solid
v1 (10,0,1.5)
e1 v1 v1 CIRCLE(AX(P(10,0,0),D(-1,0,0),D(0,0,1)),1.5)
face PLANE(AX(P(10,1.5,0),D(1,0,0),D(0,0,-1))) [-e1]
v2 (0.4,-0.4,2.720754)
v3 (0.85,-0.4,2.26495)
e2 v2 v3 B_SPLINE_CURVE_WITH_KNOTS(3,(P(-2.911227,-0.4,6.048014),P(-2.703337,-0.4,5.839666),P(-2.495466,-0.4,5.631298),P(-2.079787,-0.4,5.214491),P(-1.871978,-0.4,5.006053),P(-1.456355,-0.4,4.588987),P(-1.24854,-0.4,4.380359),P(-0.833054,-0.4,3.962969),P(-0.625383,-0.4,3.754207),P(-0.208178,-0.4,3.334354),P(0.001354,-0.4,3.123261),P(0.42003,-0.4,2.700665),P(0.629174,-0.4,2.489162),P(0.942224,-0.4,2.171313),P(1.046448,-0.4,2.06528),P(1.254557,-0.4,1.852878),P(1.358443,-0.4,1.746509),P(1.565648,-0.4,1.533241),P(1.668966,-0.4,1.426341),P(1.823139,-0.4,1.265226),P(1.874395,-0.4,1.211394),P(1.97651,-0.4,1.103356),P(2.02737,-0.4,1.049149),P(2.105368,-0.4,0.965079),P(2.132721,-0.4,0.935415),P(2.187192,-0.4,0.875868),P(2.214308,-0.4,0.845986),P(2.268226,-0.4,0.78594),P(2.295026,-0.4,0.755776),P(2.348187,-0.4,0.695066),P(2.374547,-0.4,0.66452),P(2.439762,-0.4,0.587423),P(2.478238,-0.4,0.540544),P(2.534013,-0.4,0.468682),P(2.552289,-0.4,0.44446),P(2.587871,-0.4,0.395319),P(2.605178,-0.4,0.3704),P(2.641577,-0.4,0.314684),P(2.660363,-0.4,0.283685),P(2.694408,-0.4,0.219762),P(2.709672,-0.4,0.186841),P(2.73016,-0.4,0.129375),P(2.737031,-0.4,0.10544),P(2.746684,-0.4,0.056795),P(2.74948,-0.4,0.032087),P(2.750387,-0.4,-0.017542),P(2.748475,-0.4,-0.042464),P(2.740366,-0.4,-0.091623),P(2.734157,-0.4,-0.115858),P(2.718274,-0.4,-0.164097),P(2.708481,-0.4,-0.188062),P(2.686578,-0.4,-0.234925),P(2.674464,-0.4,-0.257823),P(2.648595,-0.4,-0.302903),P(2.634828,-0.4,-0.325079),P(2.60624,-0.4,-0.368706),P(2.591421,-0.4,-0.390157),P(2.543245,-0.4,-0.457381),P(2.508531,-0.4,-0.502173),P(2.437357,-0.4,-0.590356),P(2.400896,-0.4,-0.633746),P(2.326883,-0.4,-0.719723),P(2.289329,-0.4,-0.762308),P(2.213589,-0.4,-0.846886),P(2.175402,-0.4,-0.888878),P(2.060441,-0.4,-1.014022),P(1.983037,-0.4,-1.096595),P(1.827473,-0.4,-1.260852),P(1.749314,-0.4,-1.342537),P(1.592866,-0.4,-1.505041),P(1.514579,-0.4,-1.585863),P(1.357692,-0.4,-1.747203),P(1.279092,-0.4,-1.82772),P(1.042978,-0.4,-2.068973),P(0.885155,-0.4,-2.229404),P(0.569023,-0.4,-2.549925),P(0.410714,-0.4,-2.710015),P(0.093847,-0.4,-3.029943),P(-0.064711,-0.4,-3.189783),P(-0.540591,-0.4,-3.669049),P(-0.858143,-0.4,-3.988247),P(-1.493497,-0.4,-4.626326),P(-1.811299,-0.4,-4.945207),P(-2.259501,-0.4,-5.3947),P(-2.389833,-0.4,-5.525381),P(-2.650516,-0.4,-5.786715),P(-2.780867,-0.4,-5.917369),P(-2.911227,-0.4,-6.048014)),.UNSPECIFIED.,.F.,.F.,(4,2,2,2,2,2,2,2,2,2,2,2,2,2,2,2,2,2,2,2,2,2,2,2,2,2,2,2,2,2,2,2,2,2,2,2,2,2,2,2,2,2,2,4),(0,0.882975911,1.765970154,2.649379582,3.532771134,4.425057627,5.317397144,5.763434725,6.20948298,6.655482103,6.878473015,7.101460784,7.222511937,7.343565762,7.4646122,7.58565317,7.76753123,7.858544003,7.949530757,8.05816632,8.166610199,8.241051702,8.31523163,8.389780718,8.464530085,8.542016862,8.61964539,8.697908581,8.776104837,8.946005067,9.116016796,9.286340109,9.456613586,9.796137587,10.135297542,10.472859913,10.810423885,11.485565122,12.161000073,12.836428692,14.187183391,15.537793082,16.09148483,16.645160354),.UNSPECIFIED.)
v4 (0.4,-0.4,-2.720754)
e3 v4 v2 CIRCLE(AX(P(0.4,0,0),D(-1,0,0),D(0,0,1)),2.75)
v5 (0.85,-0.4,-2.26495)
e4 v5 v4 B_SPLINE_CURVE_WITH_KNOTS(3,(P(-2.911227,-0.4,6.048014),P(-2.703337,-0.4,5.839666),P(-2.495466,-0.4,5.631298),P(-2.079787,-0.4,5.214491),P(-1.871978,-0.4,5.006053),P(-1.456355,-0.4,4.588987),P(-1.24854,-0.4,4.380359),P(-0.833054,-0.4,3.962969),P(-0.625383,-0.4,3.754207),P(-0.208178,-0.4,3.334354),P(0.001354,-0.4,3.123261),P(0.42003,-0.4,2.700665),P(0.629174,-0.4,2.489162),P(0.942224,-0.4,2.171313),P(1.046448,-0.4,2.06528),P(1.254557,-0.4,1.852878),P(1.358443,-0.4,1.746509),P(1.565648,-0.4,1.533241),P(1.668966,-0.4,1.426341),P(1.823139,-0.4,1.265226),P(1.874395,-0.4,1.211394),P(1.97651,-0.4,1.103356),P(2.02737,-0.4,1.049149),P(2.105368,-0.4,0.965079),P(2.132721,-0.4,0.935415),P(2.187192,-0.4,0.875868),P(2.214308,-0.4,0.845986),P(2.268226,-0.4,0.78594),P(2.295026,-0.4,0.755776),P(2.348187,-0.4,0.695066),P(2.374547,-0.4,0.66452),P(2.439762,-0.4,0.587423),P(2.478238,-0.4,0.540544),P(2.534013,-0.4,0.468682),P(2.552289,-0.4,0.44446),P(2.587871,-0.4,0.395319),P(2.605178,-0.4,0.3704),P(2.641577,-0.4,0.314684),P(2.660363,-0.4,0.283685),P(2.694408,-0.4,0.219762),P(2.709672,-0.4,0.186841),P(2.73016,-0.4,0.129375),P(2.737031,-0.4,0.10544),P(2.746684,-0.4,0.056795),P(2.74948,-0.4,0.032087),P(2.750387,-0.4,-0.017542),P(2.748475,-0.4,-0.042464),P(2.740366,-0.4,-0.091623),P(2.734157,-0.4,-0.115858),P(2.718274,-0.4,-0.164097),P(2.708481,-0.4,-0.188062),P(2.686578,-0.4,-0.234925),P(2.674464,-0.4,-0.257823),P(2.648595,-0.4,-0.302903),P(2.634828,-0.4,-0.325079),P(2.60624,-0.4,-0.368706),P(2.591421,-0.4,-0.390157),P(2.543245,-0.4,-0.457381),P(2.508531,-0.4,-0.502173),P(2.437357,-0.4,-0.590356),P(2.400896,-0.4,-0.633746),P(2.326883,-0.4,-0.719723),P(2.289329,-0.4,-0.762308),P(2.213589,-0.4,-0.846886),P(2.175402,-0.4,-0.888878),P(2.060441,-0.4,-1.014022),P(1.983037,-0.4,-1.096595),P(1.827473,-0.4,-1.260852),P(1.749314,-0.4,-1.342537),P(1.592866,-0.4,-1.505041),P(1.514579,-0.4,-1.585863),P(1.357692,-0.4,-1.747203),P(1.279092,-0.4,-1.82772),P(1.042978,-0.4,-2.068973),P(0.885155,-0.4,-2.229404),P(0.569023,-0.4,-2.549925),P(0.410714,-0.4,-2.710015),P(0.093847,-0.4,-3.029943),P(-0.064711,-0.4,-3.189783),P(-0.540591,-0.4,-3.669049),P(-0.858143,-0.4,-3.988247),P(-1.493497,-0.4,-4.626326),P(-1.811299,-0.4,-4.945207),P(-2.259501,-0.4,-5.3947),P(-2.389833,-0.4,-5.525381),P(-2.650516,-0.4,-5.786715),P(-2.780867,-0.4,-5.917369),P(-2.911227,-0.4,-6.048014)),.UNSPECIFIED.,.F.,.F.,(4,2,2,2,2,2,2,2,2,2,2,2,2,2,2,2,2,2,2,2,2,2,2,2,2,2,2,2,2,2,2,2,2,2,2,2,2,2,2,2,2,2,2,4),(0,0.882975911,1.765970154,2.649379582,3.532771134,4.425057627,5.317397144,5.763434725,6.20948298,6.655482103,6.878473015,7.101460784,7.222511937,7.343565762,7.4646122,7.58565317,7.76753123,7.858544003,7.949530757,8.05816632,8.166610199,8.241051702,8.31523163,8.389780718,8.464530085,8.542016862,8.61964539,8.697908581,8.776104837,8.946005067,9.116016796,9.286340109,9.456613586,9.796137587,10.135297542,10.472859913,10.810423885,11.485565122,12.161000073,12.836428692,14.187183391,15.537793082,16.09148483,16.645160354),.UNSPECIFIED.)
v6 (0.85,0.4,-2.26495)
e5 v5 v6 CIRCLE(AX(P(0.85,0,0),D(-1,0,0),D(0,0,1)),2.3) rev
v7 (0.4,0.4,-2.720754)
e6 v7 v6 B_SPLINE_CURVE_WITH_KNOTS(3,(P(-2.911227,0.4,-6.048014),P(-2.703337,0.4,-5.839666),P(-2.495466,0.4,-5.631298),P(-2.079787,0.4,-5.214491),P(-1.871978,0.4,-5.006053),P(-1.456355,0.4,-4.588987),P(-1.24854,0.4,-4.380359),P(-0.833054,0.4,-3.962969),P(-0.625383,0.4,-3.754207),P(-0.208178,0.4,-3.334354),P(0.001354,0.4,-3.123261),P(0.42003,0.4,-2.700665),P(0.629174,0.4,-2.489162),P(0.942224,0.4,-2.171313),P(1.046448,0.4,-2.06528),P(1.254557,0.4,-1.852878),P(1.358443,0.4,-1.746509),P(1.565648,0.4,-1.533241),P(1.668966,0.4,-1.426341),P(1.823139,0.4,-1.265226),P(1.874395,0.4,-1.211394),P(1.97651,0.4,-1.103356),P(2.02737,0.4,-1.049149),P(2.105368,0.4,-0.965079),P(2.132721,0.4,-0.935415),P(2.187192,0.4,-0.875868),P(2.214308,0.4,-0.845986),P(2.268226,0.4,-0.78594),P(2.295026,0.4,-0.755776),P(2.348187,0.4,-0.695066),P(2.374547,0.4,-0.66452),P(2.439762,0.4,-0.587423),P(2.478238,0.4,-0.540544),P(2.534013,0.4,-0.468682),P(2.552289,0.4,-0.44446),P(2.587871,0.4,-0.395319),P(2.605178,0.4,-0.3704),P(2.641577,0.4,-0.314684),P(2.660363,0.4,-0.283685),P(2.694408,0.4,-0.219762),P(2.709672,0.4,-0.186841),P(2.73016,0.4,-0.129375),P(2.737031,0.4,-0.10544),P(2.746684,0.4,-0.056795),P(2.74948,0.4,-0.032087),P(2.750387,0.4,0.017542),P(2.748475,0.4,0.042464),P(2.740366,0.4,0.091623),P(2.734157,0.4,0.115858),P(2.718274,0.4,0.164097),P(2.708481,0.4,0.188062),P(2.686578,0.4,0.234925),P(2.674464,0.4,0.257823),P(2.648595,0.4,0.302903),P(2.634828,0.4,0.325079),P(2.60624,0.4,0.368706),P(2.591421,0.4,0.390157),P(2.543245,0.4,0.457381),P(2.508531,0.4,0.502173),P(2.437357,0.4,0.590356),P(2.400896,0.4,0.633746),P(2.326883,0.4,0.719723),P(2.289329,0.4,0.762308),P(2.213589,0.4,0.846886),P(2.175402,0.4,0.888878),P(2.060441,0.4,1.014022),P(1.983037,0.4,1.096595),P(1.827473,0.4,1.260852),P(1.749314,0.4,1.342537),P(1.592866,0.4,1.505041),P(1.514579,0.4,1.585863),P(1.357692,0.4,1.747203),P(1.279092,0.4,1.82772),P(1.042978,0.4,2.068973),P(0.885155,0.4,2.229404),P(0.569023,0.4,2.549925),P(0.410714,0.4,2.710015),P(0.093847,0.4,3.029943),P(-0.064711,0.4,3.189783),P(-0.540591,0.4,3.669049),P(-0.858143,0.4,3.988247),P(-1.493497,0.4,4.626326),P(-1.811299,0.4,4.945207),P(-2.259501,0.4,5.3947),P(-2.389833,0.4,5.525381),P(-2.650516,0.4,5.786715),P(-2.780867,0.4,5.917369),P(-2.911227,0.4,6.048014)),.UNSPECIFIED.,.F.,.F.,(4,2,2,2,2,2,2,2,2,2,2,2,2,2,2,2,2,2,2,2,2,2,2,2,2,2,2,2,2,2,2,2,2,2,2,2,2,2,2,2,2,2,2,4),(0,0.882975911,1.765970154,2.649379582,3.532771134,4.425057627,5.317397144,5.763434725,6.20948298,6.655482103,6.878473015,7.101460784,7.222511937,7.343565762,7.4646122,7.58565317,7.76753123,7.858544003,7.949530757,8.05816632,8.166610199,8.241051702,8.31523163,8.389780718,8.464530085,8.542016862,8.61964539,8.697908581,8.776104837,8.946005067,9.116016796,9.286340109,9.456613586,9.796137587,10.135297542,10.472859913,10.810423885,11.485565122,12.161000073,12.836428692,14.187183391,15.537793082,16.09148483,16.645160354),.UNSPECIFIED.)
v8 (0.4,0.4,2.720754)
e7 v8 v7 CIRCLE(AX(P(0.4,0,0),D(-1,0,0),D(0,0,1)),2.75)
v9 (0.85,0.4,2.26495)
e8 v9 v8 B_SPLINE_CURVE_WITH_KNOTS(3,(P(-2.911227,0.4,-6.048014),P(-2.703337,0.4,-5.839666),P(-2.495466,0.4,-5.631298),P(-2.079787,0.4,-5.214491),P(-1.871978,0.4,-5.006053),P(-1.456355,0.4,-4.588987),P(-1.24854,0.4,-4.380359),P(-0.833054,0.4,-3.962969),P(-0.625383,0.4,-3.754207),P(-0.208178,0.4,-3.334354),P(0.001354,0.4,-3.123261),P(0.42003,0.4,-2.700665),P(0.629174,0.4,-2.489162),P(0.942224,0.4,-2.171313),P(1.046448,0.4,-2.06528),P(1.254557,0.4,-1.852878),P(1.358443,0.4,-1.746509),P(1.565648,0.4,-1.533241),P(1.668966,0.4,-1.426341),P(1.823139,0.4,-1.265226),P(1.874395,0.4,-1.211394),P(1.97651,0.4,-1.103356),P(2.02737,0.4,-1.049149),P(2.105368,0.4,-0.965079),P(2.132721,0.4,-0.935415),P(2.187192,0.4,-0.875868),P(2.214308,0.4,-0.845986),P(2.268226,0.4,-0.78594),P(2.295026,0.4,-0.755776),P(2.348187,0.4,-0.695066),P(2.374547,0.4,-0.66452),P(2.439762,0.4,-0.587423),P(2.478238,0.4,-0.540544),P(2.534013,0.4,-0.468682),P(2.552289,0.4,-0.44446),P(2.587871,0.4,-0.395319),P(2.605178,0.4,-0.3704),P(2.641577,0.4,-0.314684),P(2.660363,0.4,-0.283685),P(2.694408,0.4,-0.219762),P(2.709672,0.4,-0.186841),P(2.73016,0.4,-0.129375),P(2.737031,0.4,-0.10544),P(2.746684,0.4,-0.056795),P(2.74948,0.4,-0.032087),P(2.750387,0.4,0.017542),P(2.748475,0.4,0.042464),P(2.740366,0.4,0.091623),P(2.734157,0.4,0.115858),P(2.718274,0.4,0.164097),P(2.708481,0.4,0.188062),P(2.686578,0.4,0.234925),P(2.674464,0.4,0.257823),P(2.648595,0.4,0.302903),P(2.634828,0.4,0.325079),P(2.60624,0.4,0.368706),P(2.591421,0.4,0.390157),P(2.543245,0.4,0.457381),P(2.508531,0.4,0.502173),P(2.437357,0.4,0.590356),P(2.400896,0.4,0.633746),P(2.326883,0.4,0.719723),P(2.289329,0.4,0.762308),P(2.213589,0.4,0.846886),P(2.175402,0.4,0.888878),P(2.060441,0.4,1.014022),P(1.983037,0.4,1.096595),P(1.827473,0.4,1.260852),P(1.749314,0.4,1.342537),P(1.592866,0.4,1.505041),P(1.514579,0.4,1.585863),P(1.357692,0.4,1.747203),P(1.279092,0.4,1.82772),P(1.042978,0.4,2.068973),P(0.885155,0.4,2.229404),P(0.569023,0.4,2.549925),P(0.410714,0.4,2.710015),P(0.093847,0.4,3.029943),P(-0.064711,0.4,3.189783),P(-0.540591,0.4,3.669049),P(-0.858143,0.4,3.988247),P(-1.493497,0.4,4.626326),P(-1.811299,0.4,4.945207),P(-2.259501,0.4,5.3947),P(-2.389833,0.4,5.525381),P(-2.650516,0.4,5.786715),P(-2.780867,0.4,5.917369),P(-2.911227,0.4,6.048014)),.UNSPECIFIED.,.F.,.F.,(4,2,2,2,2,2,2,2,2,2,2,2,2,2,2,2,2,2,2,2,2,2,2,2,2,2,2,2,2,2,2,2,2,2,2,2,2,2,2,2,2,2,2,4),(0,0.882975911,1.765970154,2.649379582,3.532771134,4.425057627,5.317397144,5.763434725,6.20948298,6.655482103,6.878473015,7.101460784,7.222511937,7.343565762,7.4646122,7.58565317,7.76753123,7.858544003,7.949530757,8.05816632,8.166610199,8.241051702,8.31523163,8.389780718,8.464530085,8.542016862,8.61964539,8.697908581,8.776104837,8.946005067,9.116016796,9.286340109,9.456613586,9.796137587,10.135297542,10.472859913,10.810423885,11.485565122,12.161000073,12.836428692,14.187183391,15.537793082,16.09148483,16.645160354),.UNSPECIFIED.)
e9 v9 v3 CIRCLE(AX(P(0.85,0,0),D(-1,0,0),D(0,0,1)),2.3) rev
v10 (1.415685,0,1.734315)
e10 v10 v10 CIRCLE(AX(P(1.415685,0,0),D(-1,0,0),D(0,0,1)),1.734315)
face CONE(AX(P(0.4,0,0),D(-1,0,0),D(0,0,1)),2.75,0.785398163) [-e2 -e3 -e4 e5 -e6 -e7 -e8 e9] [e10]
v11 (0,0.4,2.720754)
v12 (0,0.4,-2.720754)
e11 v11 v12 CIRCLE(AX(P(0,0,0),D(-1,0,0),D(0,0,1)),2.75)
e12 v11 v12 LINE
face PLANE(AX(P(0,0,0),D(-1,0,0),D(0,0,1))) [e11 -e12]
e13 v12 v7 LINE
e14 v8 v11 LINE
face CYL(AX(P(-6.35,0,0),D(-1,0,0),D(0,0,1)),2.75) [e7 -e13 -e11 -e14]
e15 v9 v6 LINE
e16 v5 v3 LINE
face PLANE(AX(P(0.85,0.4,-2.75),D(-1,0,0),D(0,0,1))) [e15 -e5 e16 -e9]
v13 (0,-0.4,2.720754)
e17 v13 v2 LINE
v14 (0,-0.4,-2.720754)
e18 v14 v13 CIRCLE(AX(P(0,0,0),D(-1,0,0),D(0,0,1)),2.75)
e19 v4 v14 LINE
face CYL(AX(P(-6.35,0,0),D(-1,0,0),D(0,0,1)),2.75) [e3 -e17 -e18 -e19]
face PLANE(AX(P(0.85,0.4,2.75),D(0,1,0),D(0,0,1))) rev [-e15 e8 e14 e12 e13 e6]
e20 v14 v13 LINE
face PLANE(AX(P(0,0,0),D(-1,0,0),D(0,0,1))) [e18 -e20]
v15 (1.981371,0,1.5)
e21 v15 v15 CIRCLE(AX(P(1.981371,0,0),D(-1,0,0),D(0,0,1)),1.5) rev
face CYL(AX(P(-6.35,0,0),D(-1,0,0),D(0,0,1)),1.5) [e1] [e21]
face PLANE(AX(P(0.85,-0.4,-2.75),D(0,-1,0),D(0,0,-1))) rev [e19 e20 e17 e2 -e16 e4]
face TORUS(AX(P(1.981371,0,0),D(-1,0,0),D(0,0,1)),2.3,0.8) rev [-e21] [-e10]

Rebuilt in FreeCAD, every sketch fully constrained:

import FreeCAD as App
import Part
import Sketcher

V = App.Vector
Q = App.Units.Quantity


def edges_at(feature, points):
    """Names of the edges that pass closest to the given points."""
    edges = feature.Shape.Edges
    near = lambda p: min(range(len(edges)), key=lambda i: edges[i].distToShape(Part.Vertex(*p))[0])
    return sorted({f"Edge{near(p) + 1}" for p in points})

doc = App.newDocument("Part")
body = doc.addObject("PartDesign::Body", "Body")

sketch1 = body.newObject("Sketcher::SketchObject", "Sketch")
sketch1.AttachmentSupport = (doc.getObject("XY_Plane"), [""])
sketch1.MapMode = "FlatFace"
sketch1.addGeometry(Part.LineSegment(V(0, 2.75, 0), V(0, 0, 0)), False)
sketch1.addGeometry(Part.LineSegment(V(0, 0, 0), V(10, 0, 0)), False)
sketch1.addGeometry(Part.LineSegment(V(10, 0, 0), V(10, 1.5, 0)), False)
sketch1.addGeometry(Part.LineSegment(V(10, 1.5, 0), V(1.65, 1.5, 0)), False)
sketch1.addGeometry(Part.LineSegment(V(1.65, 1.5, 0), V(0.4, 2.75, 0)), False)
sketch1.addGeometry(Part.LineSegment(V(0.4, 2.75, 0), V(0, 2.75, 0)), False)
sketch1.addConstraint(Sketcher.Constraint("Coincident", 0, 2, 1, 1))
sketch1.addConstraint(Sketcher.Constraint("Coincident", 1, 2, 2, 1))
sketch1.addConstraint(Sketcher.Constraint("Coincident", 2, 2, 3, 1))
sketch1.addConstraint(Sketcher.Constraint("Coincident", 3, 2, 4, 1))
sketch1.addConstraint(Sketcher.Constraint("Coincident", 4, 2, 5, 1))
sketch1.addConstraint(Sketcher.Constraint("Coincident", 5, 2, 0, 1))
sketch1.addConstraint(Sketcher.Constraint("Vertical", 0))
sketch1.addConstraint(Sketcher.Constraint("Horizontal", 1))
sketch1.addConstraint(Sketcher.Constraint("Vertical", 2))
sketch1.addConstraint(Sketcher.Constraint("Horizontal", 3))
sketch1.addConstraint(Sketcher.Constraint("Horizontal", 5))
sketch1.addConstraint(Sketcher.Constraint("Coincident", 0, 2, -1, 1))
sketch1.addConstraint(Sketcher.Constraint("DistanceX", 1, 1, 1, 2, 10.0))
sketch1.addConstraint(Sketcher.Constraint("Angle", 4, Q("135 deg")))
sketch1.addConstraint(Sketcher.Constraint("DistanceX", 5, 2, 5, 1, 0.4))
sketch1.addConstraint(Sketcher.Constraint("DistanceY", 2, 1, 2, 2, 1.5))
sketch1.addConstraint(Sketcher.Constraint("DistanceX", 3, 2, 3, 1, 8.35))
revolution = body.newObject("PartDesign::Revolution", "Revolution")
revolution.Profile = sketch1
revolution.ReferenceAxis = (sketch1, ["H_Axis"])
revolution.Angle = 360
doc.recompute()

fillet = body.newObject("PartDesign::Fillet", "Fillet")
fillet.Base = (revolution, edges_at(revolution, [(1.65, 0, -1.5)]))
fillet.Radius = 0.8

sketch2 = body.newObject("Sketcher::SketchObject", "Sketch001")
sketch2.AttachmentSupport = (doc.getObject("YZ_Plane"), [""])
sketch2.MapMode = "FlatFace"
sketch2.addGeometry(Part.LineSegment(V(0.4, -2.8, 0), V(-0.4, -2.8, 0)), False)
sketch2.addGeometry(Part.LineSegment(V(-0.4, -2.8, 0), V(-0.4, 2.8, 0)), False)
sketch2.addGeometry(Part.LineSegment(V(-0.4, 2.8, 0), V(0.4, 2.8, 0)), False)
sketch2.addGeometry(Part.LineSegment(V(0.4, 2.8, 0), V(0.4, -2.8, 0)), False)
sketch2.addConstraint(Sketcher.Constraint("Coincident", 0, 2, 1, 1))
sketch2.addConstraint(Sketcher.Constraint("Coincident", 1, 2, 2, 1))
sketch2.addConstraint(Sketcher.Constraint("Coincident", 2, 2, 3, 1))
sketch2.addConstraint(Sketcher.Constraint("Coincident", 3, 2, 0, 1))
sketch2.addConstraint(Sketcher.Constraint("Horizontal", 0))
sketch2.addConstraint(Sketcher.Constraint("Vertical", 1))
sketch2.addConstraint(Sketcher.Constraint("Horizontal", 2))
sketch2.addConstraint(Sketcher.Constraint("Vertical", 3))
sketch2.addConstraint(Sketcher.Constraint("Symmetric", 0, 2, 2, 2, -1, 1))
sketch2.addConstraint(Sketcher.Constraint("DistanceX", 0, 2, 0, 1, 0.8))
sketch2.addConstraint(Sketcher.Constraint("DistanceY", 1, 1, 1, 2, 5.5))
pocket1 = body.newObject("PartDesign::Pocket", "Pocket")
pocket1.Profile = sketch2
pocket1.Length = 0.85
pocket1.Reversed = True

doc.recompute()
